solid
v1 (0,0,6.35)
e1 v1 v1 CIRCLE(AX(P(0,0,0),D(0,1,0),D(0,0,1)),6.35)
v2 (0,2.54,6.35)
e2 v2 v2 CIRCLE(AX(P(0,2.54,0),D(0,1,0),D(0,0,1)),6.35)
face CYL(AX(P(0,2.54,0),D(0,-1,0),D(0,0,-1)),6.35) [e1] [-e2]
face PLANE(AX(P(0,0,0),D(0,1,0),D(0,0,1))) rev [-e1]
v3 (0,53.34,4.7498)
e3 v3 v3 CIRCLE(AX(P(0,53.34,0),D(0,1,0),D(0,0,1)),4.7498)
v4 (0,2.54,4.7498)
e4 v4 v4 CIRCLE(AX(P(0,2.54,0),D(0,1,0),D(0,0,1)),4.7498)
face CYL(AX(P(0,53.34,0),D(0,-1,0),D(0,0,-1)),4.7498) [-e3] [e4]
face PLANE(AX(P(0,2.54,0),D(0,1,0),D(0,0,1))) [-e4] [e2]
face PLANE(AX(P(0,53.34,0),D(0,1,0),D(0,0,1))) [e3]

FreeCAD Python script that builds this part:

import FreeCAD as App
import Part
import Sketcher
Q = App.Units.Quantity

doc = App.newDocument("Part")
body = doc.addObject("PartDesign::Body", "Body")

# Sketch on XZ plane
sketch1 = doc.addObject("Sketcher::SketchObject", "Sketch")
body.addObject(sketch1)
sketch1.AttachmentSupport = (doc.XZ_Plane, [""])
sketch1.MapMode = "FlatFace"
sketch1.addGeometry(Part.Circle(App.Vector(0, 0, 0), App.Vector(0, 0, 1), 6), False)
sketch1.addConstraint([
    Sketcher.Constraint("Coincident", 0, 3, -1, 1),
    Sketcher.Constraint("Diameter", 0, Q("0.5 in")),
])
pad1 = doc.addObject("PartDesign::Pad", "Pad")
body.addObject(pad1)
pad1.Profile = sketch1
pad1.Length = Q("0.1 in")
pad1.Reversed = True

# Sketch on XZ plane
sketch2 = doc.addObject("Sketcher::SketchObject", "Sketch001")
body.addObject(sketch2)
sketch2.AttachmentSupport = (doc.XZ_Plane, [""])
sketch2.MapMode = "FlatFace"
sketch2.AttachmentOffset = App.Placement(App.Vector(0, 0, -0.1 * 25.4), App.Rotation())
sketch2.addGeometry(Part.Circle(App.Vector(0, 0, 0), App.Vector(0, 0, 1), 4.7), False)
sketch2.addConstraint([
    Sketcher.Constraint("Coincident", 0, 3, -1, 1),
    Sketcher.Constraint("Diameter", 0, Q("0.374 in")),
])
pad2 = doc.addObject("PartDesign::Pad", "Pad001")
body.addObject(pad2)
pad2.Profile = sketch2
pad2.Length = Q("2 in")
pad2.Reversed = True

doc.recompute()
